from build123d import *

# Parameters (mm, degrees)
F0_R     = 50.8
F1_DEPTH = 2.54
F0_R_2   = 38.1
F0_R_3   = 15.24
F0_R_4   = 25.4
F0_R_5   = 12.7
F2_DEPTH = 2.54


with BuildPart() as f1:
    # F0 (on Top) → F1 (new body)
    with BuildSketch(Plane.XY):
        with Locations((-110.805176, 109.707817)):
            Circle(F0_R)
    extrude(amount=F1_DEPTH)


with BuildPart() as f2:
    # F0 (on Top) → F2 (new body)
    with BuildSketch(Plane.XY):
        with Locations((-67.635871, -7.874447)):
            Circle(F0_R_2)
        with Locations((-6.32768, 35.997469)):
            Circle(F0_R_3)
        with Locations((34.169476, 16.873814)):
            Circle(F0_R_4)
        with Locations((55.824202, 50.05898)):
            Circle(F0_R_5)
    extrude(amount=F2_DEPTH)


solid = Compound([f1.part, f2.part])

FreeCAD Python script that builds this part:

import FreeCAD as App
import Part
import Sketcher
from FreeCAD import Vector
Q = App.Units.Quantity

doc = App.newDocument("Part")
params = doc.addObject("Spreadsheet::Sheet", "Params")
for row, (alias, value) in enumerate([
    ("sketch1_diameter", "4 in"),
    ("pad1_length", "0.1 in"),
    ("sketch2_diameter", "3 in"),
    ("sketch2_diameter2", "2 in"),
    ("sketch2_diameter3", "1 in"),
    ("sketch2_diameter4", "1.2 in"),
    ("pad2_length", "0.1 in"),
], start=1):
    params.set(f"A{row}", alias)
    params.set(f"B{row}", "=" + value)
    params.setAlias(f"B{row}", alias)

body = doc.addObject("PartDesign::Body", "Body")

# Sketch on XY plane
sketch1 = body.newObject("Sketcher::SketchObject", "Sketch")
sketch1.AttachmentSupport = (doc.getObject("XY_Plane"), [""])
sketch1.MapMode = "FlatFace"
sketch1.addGeometry(Part.Circle(Vector(-110.805176, 109.707817, 0), Vector(0, 0, 1), 50.8), False)
sketch1.addConstraint([
    Sketcher.Constraint("Diameter", 0, Q("4 in")),
    Sketcher.Constraint("DistanceX", 0, 3, -1, 1, 110.805176),
    Sketcher.Constraint("DistanceY", -1, 1, 0, 3, 109.707817),
])
sketch1.setExpression("Constraints[0]", "Params.sketch1_diameter")
pad1 = body.newObject("PartDesign::Pad", "Pad")
pad1.Profile = sketch1
pad1.setExpression("Length", "Params.pad1_length")
body2 = doc.addObject("PartDesign::Body", "Body001")
body2.AllowCompound = True

# Sketch on XY plane
sketch2 = body2.newObject("Sketcher::SketchObject", "Sketch001")
sketch2.AttachmentSupport = (doc.getObject("XY_Plane001"), [""])
sketch2.MapMode = "FlatFace"
sketch2.addGeometry([
    Part.Circle(Vector(-67.635871, -7.874447, 0), Vector(0, 0, 1), 38.1),
    Part.Circle(Vector(-6.32768, 35.997469, 0), Vector(0, 0, 1), 15.24),
    Part.Circle(Vector(34.169476, 16.873814, 0), Vector(0, 0, 1), 25.4),
    Part.Circle(Vector(55.824202, 50.05898, 0), Vector(0, 0, 1), 12.7),
], False)
sketch2.addConstraint([
    Sketcher.Constraint("Diameter", 0, Q("3 in")),
    Sketcher.Constraint("Diameter", 2, Q("2 in")),
    Sketcher.Constraint("Diameter", 3, Q("1 in")),
    Sketcher.Constraint("Diameter", 1, Q("1.2 in")),
    Sketcher.Constraint("DistanceY", 2, 3, 1, 3, Q("0.7528998 in")),
    Sketcher.Constraint("DistanceX", 0, 3, -1, 1, 67.635871),
    Sketcher.Constraint("DistanceX", 1, 3, -1, 1, 6.32768),
    Sketcher.Constraint("DistanceY", -1, 1, 1, 3, 35.997469),
    Sketcher.Constraint("DistanceY", -1, 1, 3, 3, 50.05898),
    Sketcher.Constraint("DistanceY", 0, 3, 2, 3, 24.748261),
    Sketcher.Constraint("DistanceX", -1, 1, 2, 3, 34.169476),
    Sketcher.Constraint("DistanceX", -1, 1, 3, 3, 55.824202),
])
sketch2.setExpression("Constraints[0]", "Params.sketch2_diameter")
sketch2.setExpression("Constraints[1]", "Params.sketch2_diameter2")
sketch2.setExpression("Constraints[2]", "Params.sketch2_diameter3")
sketch2.setExpression("Constraints[3]", "Params.sketch2_diameter4")
pad2 = body2.newObject("PartDesign::Pad", "Pad001")
pad2.Profile = sketch2
pad2.setExpression("Length", "Params.pad2_length")

doc.recompute()
